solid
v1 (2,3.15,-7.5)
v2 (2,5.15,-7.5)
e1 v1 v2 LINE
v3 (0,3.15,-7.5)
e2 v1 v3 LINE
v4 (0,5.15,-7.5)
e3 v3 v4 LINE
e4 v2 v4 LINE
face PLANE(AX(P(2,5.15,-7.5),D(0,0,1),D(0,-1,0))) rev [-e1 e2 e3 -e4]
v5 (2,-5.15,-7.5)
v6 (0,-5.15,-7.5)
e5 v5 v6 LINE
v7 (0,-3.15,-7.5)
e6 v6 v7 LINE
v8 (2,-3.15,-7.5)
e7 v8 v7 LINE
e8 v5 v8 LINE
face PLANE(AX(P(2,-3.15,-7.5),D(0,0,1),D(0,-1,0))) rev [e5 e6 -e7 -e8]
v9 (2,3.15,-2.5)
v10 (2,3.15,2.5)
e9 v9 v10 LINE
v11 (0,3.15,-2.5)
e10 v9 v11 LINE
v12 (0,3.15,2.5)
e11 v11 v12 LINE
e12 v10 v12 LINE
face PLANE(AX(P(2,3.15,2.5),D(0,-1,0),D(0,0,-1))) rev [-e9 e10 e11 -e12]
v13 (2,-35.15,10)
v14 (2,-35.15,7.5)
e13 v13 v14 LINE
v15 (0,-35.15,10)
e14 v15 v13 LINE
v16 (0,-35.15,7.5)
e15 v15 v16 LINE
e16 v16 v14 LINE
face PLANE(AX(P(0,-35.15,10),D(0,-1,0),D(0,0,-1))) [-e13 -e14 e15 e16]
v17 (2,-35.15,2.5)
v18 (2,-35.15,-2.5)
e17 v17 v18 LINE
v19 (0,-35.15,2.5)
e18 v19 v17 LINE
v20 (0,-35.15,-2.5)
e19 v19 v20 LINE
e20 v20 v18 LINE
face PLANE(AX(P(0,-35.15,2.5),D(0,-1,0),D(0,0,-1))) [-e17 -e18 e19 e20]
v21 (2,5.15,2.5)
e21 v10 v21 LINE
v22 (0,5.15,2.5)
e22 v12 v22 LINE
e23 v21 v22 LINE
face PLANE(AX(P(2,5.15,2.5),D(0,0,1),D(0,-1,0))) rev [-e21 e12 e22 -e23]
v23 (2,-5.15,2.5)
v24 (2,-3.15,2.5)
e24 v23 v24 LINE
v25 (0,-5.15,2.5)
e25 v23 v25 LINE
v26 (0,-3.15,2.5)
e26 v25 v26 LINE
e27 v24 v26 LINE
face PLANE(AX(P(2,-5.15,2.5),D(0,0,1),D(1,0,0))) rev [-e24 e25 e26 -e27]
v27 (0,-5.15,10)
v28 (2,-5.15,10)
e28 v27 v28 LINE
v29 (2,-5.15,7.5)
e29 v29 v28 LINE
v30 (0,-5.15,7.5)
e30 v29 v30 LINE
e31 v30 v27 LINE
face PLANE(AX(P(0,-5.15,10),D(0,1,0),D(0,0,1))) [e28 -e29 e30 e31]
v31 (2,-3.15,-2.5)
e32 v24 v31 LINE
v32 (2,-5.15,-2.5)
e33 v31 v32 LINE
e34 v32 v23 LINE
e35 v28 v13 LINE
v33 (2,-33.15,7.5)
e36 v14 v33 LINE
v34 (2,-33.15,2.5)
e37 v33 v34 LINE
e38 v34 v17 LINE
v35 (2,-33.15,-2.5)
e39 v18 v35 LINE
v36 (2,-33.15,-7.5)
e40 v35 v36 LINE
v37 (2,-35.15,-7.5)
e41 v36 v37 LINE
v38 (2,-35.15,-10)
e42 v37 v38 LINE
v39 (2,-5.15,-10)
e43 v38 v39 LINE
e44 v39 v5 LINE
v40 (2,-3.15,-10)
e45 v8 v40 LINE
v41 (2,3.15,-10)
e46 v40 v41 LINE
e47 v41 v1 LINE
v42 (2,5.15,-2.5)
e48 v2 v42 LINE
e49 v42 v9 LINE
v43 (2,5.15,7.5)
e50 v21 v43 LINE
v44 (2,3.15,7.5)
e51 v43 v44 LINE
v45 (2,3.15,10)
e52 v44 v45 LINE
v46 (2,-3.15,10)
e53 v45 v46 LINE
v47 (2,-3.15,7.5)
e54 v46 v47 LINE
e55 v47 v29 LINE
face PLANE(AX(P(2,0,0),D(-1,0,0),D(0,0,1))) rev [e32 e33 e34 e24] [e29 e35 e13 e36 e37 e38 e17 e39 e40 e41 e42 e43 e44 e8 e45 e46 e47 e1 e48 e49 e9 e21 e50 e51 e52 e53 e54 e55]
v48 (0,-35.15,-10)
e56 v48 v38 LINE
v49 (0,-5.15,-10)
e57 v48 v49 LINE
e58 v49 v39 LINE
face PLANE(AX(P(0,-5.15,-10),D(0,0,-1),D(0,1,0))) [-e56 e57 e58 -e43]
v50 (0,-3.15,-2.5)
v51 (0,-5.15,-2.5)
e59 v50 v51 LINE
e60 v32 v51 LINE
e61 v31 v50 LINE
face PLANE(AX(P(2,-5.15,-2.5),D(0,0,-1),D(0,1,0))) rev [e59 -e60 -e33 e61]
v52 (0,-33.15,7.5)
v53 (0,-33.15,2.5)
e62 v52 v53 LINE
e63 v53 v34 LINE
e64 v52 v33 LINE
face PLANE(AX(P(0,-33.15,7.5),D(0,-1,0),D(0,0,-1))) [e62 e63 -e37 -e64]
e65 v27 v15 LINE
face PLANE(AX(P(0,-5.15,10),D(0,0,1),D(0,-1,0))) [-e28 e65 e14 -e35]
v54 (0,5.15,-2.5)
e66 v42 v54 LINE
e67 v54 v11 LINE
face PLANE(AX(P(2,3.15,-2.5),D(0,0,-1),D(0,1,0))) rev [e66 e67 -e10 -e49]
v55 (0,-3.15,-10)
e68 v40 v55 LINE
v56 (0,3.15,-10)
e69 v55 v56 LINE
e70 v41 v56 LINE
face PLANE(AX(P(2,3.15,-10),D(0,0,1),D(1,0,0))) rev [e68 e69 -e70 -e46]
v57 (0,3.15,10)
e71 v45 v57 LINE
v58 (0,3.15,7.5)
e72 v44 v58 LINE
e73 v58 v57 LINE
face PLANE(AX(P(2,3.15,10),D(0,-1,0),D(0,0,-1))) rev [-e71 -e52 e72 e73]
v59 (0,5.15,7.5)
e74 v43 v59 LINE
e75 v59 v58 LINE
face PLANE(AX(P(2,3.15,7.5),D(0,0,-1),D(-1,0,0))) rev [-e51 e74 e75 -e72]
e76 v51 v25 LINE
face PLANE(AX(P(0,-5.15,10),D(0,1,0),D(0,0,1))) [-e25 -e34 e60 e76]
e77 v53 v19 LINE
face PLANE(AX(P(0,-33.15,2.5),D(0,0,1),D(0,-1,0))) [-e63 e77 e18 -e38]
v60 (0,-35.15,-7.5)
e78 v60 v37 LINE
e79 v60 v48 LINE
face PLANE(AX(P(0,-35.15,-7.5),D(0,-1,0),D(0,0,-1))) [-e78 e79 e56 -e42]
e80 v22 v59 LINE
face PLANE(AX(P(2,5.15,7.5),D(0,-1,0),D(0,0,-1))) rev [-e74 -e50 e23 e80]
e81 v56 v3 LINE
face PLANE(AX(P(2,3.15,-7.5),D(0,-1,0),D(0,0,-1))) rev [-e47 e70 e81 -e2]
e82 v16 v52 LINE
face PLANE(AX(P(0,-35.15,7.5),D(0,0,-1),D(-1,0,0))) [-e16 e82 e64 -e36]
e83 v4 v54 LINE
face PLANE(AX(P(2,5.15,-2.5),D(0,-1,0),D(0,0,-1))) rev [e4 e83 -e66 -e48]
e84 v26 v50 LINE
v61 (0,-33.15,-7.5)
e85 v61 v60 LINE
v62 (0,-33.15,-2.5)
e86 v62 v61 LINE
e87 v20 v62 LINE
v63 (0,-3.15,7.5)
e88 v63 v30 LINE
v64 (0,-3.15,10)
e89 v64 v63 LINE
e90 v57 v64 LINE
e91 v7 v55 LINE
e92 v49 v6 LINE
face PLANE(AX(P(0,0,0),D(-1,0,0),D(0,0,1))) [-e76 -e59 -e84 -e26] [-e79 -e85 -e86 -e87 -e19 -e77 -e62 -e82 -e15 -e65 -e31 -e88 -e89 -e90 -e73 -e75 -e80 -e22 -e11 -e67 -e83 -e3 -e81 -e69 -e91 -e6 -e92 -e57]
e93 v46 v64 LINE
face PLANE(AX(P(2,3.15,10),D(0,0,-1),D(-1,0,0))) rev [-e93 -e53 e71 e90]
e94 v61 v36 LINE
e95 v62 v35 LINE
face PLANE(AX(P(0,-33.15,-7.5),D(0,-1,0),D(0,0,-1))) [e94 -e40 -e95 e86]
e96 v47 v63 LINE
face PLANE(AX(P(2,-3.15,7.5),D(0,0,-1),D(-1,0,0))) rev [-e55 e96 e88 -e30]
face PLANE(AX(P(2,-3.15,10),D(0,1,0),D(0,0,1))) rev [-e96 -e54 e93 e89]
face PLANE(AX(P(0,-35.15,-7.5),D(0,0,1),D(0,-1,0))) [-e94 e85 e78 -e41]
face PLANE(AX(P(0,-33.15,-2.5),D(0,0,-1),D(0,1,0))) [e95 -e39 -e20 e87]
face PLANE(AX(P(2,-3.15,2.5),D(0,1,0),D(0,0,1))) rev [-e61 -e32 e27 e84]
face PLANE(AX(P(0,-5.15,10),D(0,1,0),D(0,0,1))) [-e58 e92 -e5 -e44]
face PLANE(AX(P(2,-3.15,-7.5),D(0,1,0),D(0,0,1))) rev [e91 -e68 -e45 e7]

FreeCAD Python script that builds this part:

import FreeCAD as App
import Part
import Sketcher
Q = App.Units.Quantity


def add_polygon(sketch, points):
    """Adds a closed chain of lines whose ends are joined by coincident constraints."""
    first, n = sketch.GeometryCount, len(points)
    for a, b in zip(points, points[1:] + points[:1]):
        sketch.addGeometry(Part.LineSegment(App.Vector(*a, 0), App.Vector(*b, 0)), False)
    for i in range(n):
        sketch.addConstraint(Sketcher.Constraint("Coincident", first + i, 2, first + (i + 1) % n, 1))

doc = App.newDocument("Part")
params = doc.addObject("Spreadsheet::Sheet", "Params")
for row, (alias, value) in enumerate([
    ("sketch1_width", "2 mm"),
    ("sketch1_height", "5 mm"),
    ("sketch1_width2", "6.3 mm"),
    ("sketch1_height2", "2.5 mm"),
    ("pad1_length", "2 mm"),
    ("sketch2_width", "30 mm"),
    ("sketch2_width2", "2 mm"),
    ("sketch2_height", "20 mm"),
    ("sketch2_height2", "5 mm"),
    ("pad2_length", "2 mm"),
], start=1):
    params.set(f"A{row}", alias)
    params.set(f"B{row}", "=" + value)
    params.setAlias(f"B{row}", alias)

body = doc.addObject("PartDesign::Body", "Body")

sketch1 = body.newObject("Sketcher::SketchObject", "Sketch")
sketch1.AttachmentSupport = (doc.getObject("YZ_Plane"), [""])
sketch1.MapMode = "FlatFace"
add_polygon(sketch1, [(5.2, 7.5), (3.1, 7.5), (3.1, 10), (-3.1, 10), (-3.1, 7.5), (-5.2, 7.5), (-5.2, 2.5), (-3.1, 2.5), (-3.1, -2.5), (-5.2, -2.5), (-5.2, -7.5), (-3.1, -7.5), (-3.1, -10), (3.1, -10), (3.1, -7.5), (5.2, -7.5), (5.2, -2.5), (3.1, -2.5), (3.1, 2.5), (5.2, 2.5)])
sketch1.addConstraint([
    Sketcher.Constraint("Horizontal", 0),
    Sketcher.Constraint("Vertical", 1),
    Sketcher.Constraint("Horizontal", 2),
    Sketcher.Constraint("Vertical", 3),
    Sketcher.Constraint("Horizontal", 4),
    Sketcher.Constraint("Vertical", 5),
    Sketcher.Constraint("Horizontal", 6),
    Sketcher.Constraint("Vertical", 7),
    Sketcher.Constraint("Horizontal", 8),
    Sketcher.Constraint("Vertical", 9),
    Sketcher.Constraint("Horizontal", 10),
    Sketcher.Constraint("Vertical", 11),
    Sketcher.Constraint("Horizontal", 12),
    Sketcher.Constraint("Vertical", 13),
    Sketcher.Constraint("Horizontal", 14),
    Sketcher.Constraint("Vertical", 15),
    Sketcher.Constraint("Horizontal", 16),
    Sketcher.Constraint("Vertical", 17),
    Sketcher.Constraint("Horizontal", 18),
    Sketcher.Constraint("Vertical", 19),
    Sketcher.Constraint("Symmetric", 0, 2, 10, 2, -1, 1),
    Sketcher.Constraint("Symmetric", 2, 2, 12, 2, -1, 1),
    Sketcher.Constraint("Symmetric", 4, 2, 14, 2, -1, 1),
    Sketcher.Constraint("Symmetric", 6, 2, 16, 2, -1, 1),
    Sketcher.Constraint("Symmetric", 8, 2, 18, 2, -1, 1),
    Sketcher.Constraint("Symmetric", 0, 2, 3, 2, -2),
    Sketcher.Constraint("Symmetric", 8, 2, 15, 2, -2),
    Sketcher.Constraint("Vertical", 3, 2, 6, 2),
    Sketcher.Constraint("Equal", 5, 7),
    Sketcher.Constraint("DistanceX", 0, 2, 0, 1, Q("2 mm")),
    Sketcher.Constraint("DistanceY", 5, 2, 5, 1, Q("5 mm")),
    Sketcher.Constraint("DistanceX", 2, 2, 2, 1, Q("6.3 mm")),
    Sketcher.Constraint("DistanceY", 1, 1, 1, 2, Q("2.5 mm")),
])
sketch1.setExpression("Constraints[49]", "Params.sketch1_width")
sketch1.setExpression("Constraints[50]", "Params.sketch1_height")
sketch1.setExpression("Constraints[51]", "Params.sketch1_width2")
sketch1.setExpression("Constraints[52]", "Params.sketch1_height2")
pad1 = body.newObject("PartDesign::Pad", "Pad")
pad1.Profile = sketch1
pad1.setExpression("Length", "Params.pad1_length")

sketch2 = body.newObject("Sketcher::SketchObject", "Sketch001")
sketch2.AttachmentSupport = (doc.getObject("YZ_Plane"), [""])
sketch2.MapMode = "FlatFace"
sketch2.AttachmentOffset = App.Placement(App.Vector(0, 0, 2), App.Rotation())
add_polygon(sketch2, [(-5.2, -10), (-5.2, 10), (-35.1, 10), (-35.1, 7.5), (-33.1, 7.5), (-33.1, 2.5), (-35.1, 2.5), (-35.1, -2.5), (-33.1, -2.5), (-33.1, -7.5), (-35.1, -7.5), (-35.1, -10)])
sketch2.addConstraint([
    Sketcher.Constraint("Vertical", 0),
    Sketcher.Constraint("Horizontal", 1),
    Sketcher.Constraint("Vertical", 2),
    Sketcher.Constraint("Horizontal", 3),
    Sketcher.Constraint("Vertical", 4),
    Sketcher.Constraint("Horizontal", 5),
    Sketcher.Constraint("Vertical", 6),
    Sketcher.Constraint("Horizontal", 7),
    Sketcher.Constraint("Vertical", 8),
    Sketcher.Constraint("Horizontal", 9),
    Sketcher.Constraint("Vertical", 10),
    Sketcher.Constraint("Horizontal", 11),
    Sketcher.Constraint("Symmetric", 4, 2, 7, 2, -1),
    Sketcher.Constraint("Symmetric", 2, 2, 9, 2, -1),
    Sketcher.Constraint("Vertical", 2, 2, 5, 2),
    Sketcher.Constraint("Equal", 4, 6),
    Sketcher.Constraint("Equal", 2, 10),
    Sketcher.Constraint("DistanceX", 1, 2, 1, 1, Q("30 mm")),
    Sketcher.Constraint("DistanceX", 3, 1, 3, 2, Q("2 mm")),
    Sketcher.Constraint("DistanceY", 0, 1, 0, 2, Q("20 mm")),
    Sketcher.Constraint("DistanceY", 4, 2, 4, 1, Q("5 mm")),
    Sketcher.Constraint("DistanceX", 0, 2, -1, 1, Q("5.15 mm")),
])
sketch2.setExpression("Constraints[29]", "Params.sketch2_width")
sketch2.setExpression("Constraints[30]", "Params.sketch2_width2")
sketch2.setExpression("Constraints[31]", "Params.sketch2_height")
sketch2.setExpression("Constraints[32]", "Params.sketch2_height2")
pad2 = body.newObject("PartDesign::Pad", "Pad001")
pad2.Profile = sketch2
pad2.setExpression("Length", "Params.pad2_length")
pad2.Reversed = True

doc.recompute()
